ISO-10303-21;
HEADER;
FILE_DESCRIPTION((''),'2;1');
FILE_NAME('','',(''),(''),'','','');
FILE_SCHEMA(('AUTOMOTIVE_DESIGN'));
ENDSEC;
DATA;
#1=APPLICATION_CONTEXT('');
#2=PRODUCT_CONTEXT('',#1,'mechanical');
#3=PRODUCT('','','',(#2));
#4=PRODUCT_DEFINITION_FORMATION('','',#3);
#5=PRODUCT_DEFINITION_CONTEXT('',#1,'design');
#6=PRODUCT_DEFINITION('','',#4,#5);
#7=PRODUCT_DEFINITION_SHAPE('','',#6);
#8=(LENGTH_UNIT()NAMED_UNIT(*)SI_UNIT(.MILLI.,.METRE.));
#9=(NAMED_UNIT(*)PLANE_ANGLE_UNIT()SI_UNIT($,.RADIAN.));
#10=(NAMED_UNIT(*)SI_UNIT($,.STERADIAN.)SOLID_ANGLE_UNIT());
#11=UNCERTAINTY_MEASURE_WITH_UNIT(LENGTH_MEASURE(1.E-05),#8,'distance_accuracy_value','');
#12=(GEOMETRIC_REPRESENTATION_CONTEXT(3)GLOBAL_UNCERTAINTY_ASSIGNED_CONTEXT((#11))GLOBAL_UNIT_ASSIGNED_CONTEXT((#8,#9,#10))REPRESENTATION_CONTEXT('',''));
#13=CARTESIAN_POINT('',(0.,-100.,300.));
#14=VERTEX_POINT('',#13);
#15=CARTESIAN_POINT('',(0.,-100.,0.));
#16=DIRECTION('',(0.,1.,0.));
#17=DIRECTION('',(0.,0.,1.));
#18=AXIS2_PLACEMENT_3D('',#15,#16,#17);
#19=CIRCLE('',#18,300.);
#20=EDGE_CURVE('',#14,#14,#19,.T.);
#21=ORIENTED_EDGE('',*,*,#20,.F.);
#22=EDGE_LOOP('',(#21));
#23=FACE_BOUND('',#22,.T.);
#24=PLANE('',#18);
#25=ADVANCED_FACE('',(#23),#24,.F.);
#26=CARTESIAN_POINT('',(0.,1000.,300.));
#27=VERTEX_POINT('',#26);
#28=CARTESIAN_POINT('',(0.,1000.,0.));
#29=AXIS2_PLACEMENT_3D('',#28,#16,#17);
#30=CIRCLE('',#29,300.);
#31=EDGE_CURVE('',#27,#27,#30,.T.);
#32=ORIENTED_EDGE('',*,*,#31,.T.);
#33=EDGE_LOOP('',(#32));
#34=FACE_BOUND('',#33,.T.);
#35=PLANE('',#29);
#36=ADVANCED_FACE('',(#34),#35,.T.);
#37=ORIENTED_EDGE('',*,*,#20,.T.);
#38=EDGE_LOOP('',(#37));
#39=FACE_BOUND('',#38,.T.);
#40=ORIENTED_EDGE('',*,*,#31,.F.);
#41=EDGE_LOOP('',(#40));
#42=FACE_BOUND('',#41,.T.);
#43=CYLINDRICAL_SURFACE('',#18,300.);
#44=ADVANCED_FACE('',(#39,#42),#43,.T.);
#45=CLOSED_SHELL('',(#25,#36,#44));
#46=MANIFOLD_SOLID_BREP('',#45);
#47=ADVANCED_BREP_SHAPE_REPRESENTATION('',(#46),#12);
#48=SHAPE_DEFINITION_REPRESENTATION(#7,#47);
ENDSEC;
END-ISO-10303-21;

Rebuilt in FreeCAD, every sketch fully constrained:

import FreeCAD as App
import Part
import Sketcher

doc = App.newDocument("Part")
body = doc.addObject("PartDesign::Body", "Body")

sketch1 = body.newObject("Sketcher::SketchObject", "Sketch")
sketch1.AttachmentSupport = (doc.getObject("XZ_Plane"), [""])
sketch1.MapMode = "FlatFace"
sketch1.addGeometry(Part.Circle(App.Vector(0, 0, 0), App.Vector(0, 0, 1), 300), False)
sketch1.addConstraint([
    Sketcher.Constraint("Coincident", 0, 3, -1, 1),
    Sketcher.Constraint("Diameter", 0, 600.0),
])
pad1 = body.newObject("PartDesign::Pad", "Pad")
pad1.Profile = sketch1
pad1.Type = "TwoLengths"
pad1.Length = 1000
pad1.Length2 = 100
pad1.Reversed = True

doc.recompute()
